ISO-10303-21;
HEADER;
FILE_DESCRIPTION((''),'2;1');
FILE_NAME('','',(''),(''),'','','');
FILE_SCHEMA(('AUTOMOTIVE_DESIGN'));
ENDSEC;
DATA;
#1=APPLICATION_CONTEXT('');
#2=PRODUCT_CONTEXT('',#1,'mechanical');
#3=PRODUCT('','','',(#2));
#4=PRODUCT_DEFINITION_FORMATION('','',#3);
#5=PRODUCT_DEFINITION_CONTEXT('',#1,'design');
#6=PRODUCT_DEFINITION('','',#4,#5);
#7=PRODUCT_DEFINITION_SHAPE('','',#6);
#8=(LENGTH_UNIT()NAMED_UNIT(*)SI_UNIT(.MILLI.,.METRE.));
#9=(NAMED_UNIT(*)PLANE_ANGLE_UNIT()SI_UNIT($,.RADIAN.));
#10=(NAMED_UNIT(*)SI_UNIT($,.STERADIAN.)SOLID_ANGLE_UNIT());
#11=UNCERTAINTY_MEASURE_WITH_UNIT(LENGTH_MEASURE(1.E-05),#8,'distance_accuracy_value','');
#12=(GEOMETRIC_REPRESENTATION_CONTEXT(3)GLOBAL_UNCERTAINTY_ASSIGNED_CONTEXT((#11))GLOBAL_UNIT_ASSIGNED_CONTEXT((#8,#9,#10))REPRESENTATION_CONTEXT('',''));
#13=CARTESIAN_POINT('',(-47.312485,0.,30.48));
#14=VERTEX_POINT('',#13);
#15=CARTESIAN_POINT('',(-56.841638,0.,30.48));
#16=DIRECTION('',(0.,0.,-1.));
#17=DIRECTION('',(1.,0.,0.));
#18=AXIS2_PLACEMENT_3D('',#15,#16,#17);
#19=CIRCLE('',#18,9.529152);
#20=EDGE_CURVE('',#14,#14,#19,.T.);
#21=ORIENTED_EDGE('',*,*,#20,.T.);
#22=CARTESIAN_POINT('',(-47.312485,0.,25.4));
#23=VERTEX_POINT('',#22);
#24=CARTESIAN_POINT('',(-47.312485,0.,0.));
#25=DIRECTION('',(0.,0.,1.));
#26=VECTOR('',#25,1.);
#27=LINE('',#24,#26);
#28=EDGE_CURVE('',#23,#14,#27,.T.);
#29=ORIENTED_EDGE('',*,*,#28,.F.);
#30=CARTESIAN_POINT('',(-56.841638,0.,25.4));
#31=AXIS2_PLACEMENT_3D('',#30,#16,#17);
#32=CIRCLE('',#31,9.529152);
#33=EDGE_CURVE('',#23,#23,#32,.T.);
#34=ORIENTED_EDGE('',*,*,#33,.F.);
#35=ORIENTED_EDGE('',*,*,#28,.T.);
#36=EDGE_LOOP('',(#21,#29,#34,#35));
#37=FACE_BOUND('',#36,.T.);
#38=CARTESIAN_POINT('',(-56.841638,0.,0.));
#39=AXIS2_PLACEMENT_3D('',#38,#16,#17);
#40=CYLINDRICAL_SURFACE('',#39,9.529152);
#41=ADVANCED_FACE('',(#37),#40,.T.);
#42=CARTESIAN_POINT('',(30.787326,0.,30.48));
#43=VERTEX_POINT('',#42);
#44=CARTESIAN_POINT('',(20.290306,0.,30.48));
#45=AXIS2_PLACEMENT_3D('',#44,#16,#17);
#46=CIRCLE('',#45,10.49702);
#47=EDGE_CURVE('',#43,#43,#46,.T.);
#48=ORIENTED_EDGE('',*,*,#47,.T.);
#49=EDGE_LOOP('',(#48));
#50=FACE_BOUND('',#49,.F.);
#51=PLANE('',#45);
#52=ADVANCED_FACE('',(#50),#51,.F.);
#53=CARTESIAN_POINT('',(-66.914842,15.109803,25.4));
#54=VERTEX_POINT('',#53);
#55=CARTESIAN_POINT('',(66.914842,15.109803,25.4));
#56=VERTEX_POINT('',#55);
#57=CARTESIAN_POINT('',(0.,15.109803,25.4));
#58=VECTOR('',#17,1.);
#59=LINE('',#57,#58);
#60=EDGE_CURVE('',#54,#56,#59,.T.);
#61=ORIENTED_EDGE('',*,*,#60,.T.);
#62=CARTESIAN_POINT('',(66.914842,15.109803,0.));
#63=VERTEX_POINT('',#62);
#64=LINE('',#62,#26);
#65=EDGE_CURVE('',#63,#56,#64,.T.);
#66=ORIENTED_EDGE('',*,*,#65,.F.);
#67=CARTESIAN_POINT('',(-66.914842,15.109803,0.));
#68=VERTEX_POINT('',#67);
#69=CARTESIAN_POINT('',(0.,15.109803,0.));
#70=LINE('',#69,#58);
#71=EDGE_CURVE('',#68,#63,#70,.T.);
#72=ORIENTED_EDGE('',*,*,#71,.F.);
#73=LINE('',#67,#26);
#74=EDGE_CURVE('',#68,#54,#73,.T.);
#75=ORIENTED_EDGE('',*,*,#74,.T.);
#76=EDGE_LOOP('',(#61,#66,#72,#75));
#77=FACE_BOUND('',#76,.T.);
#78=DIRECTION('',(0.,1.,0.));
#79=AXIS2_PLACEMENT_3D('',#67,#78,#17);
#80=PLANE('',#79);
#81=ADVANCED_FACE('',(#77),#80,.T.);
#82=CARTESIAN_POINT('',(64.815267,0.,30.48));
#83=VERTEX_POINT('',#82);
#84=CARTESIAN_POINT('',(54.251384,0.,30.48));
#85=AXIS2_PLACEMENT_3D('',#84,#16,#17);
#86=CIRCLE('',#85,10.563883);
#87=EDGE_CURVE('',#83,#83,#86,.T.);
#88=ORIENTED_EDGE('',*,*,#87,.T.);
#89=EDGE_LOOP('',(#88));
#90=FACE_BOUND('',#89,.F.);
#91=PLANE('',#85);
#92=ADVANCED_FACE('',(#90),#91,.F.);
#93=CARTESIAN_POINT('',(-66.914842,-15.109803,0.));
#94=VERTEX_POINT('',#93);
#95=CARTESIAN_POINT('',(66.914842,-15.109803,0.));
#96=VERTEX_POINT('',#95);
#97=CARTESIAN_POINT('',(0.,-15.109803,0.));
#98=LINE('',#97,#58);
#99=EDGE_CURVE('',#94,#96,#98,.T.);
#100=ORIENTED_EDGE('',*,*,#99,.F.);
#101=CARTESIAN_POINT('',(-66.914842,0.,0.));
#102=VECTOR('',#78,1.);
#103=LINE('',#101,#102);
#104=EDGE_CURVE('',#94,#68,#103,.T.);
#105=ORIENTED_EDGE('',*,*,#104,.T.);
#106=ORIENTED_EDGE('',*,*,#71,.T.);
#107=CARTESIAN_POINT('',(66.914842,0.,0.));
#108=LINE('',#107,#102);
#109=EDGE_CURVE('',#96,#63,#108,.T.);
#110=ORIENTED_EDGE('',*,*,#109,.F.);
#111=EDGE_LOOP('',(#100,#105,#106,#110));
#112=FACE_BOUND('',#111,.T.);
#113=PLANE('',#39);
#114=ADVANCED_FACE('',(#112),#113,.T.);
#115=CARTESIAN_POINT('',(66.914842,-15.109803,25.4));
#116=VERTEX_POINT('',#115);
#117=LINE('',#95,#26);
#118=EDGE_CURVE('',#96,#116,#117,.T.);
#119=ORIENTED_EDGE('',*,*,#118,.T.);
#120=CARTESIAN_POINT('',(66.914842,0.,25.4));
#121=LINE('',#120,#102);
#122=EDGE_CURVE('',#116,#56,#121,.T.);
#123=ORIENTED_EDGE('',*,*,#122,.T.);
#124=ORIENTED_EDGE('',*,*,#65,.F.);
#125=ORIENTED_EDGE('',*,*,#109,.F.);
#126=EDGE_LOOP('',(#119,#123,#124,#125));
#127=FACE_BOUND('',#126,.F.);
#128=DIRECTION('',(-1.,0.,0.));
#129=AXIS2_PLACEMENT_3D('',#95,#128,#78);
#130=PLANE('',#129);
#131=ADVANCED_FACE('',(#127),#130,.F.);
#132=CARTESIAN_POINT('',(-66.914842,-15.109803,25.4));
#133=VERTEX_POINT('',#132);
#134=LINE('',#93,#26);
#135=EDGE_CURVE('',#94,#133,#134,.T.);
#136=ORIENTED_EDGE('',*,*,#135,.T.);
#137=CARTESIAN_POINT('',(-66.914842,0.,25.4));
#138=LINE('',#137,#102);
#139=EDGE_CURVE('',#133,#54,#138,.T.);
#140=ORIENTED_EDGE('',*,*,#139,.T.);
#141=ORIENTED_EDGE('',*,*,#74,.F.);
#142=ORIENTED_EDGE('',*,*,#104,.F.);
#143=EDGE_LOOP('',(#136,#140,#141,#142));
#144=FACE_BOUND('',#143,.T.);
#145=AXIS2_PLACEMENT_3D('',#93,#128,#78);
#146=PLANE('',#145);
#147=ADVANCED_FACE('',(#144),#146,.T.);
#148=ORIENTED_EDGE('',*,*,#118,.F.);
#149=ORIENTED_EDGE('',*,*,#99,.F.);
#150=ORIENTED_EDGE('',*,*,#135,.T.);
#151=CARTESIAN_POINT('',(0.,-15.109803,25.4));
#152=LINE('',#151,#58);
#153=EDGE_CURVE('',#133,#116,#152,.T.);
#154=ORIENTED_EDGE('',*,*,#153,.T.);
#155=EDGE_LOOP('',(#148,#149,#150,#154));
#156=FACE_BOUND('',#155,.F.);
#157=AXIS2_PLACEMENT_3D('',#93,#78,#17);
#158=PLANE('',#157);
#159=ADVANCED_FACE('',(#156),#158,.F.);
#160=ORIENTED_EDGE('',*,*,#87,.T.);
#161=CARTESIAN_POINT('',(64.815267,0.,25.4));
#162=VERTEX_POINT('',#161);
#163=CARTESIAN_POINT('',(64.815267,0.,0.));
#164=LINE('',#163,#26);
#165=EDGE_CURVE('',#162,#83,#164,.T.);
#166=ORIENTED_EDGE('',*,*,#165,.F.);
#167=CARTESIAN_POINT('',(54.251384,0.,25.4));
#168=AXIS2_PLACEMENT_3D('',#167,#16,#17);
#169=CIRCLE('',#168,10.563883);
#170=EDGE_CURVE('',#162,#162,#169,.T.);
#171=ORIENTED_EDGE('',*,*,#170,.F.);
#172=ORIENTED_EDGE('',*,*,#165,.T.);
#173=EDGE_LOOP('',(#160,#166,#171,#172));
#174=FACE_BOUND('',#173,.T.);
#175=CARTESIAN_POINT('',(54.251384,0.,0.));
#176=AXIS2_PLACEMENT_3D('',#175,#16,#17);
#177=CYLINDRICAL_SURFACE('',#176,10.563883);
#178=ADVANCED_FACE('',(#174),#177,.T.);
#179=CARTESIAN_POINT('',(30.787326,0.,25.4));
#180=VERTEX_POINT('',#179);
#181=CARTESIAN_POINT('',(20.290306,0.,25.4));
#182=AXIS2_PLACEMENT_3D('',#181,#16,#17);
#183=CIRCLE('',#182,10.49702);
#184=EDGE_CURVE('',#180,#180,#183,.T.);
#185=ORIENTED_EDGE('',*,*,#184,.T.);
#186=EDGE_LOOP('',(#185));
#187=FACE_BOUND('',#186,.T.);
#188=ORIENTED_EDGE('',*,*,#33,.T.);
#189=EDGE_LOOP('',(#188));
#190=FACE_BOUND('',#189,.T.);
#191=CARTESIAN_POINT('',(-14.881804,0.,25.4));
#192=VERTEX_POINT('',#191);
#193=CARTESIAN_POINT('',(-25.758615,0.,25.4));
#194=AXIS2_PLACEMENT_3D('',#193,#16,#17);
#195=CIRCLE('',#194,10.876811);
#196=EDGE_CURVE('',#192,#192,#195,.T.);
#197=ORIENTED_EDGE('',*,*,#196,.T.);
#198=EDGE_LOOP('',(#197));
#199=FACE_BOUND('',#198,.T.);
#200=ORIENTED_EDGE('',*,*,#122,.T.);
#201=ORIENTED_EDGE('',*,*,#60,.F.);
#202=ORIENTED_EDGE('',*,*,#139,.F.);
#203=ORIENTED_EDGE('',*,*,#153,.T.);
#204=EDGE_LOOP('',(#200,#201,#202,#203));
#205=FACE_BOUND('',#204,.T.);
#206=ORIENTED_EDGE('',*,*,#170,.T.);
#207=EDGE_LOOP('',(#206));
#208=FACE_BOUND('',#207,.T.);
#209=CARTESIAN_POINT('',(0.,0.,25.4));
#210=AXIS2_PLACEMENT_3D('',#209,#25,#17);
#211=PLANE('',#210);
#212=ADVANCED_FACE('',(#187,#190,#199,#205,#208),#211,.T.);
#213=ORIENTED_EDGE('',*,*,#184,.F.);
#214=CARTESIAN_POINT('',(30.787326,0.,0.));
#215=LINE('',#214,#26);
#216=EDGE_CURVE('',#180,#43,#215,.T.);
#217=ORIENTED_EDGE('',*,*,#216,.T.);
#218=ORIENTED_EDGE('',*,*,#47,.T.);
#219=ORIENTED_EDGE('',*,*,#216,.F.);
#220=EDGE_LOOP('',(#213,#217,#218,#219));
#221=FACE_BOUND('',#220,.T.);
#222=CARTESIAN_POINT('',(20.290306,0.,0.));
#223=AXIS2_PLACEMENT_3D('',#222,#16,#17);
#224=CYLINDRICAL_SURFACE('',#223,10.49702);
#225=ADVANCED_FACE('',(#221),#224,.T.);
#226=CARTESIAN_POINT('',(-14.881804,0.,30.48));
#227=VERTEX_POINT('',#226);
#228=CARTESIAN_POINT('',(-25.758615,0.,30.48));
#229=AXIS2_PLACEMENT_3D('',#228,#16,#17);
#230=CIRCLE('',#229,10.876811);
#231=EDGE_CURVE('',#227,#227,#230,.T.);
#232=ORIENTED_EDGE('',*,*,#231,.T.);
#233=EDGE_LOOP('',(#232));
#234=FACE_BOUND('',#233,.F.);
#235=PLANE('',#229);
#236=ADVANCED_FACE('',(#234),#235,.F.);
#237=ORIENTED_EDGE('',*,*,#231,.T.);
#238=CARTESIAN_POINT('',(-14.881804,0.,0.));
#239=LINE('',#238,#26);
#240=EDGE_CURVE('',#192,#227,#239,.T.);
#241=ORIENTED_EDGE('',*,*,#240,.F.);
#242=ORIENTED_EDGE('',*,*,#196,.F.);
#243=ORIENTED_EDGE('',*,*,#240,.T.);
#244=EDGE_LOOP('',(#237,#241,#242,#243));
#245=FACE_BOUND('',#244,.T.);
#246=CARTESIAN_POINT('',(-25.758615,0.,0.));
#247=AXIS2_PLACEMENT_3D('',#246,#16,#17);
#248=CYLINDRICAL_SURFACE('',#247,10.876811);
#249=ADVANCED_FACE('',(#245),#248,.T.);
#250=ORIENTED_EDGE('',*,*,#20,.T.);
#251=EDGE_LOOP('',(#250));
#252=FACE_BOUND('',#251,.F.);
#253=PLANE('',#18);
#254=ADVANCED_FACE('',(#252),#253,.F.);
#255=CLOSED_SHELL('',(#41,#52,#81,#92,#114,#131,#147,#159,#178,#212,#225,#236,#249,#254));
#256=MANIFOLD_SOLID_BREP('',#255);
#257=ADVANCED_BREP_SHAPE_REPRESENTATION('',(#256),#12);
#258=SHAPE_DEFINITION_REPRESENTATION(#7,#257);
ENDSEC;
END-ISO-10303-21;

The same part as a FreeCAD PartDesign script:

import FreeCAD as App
import Part
import Sketcher
from FreeCAD import Vector
Q = App.Units.Quantity


def add_polygon(sketch, points):
    """Adds a closed chain of lines whose ends are joined by coincident constraints."""
    first, n = sketch.GeometryCount, len(points)
    for a, b in zip(points, points[1:] + points[:1]):
        sketch.addGeometry(Part.LineSegment(App.Vector(*a, 0), App.Vector(*b, 0)), False)
    for i in range(n):
        sketch.addConstraint(Sketcher.Constraint("Coincident", first + i, 2, first + (i + 1) % n, 1))

doc = App.newDocument("Part")
body = doc.addObject("PartDesign::Body", "Body")

# Sketch on XY plane
sketch1 = body.newObject("Sketcher::SketchObject", "Sketch")
sketch1.AttachmentSupport = (doc.getObject("XY_Plane"), [""])
sketch1.MapMode = "FlatFace"
add_polygon(sketch1, [(-66.914842, 15.109803), (-66.914842, -15.109803), (66.914842, -15.109803), (66.914842, 15.109803)])  # lines 0-3
sketch1.addConstraint([
    Sketcher.Constraint("Vertical", 0),
    Sketcher.Constraint("Horizontal", 1),
    Sketcher.Constraint("Vertical", 2),
    Sketcher.Constraint("Horizontal", 3),
    Sketcher.Constraint("Symmetric", 0, 2, 2, 2, -1, 1),
    Sketcher.Constraint("DistanceX", 1, 1, 1, 2, Q("133.829683 mm")),
    Sketcher.Constraint("DistanceY", 0, 2, 0, 1, Q("30.219605 mm")),
])
pad1 = body.newObject("PartDesign::Pad", "Pad")
pad1.Profile = sketch1
pad1.Length = Q("1 in")

# Sketch on XY plane
sketch2 = body.newObject("Sketcher::SketchObject", "Sketch001")
sketch2.AttachmentSupport = (doc.getObject("XY_Plane"), [""])
sketch2.MapMode = "FlatFace"
sketch2.addGeometry([
    Part.Circle(Vector(-56.841638, 0, 0), Vector(0, 0, 1), 9.529152),
    Part.Circle(Vector(-25.758615, 0, 0), Vector(0, 0, 1), 10.876811),
    Part.Circle(Vector(20.290306, 0, 0), Vector(0, 0, 1), 10.49702),
    Part.Circle(Vector(54.251384, 0, 0), Vector(0, 0, 1), 10.563883),
], False)
sketch2.addConstraint([
    Sketcher.Constraint("PointOnObject", 0, 3, -1),
    Sketcher.Constraint("PointOnObject", 1, 3, -1),
    Sketcher.Constraint("PointOnObject", 2, 3, -1),
    Sketcher.Constraint("PointOnObject", 3, 3, -1),
    Sketcher.Constraint("DistanceX", 1, 3, 3, 3, Q("3.15 in")),
    Sketcher.Constraint("Diameter", 1, Q("21.753622 mm")),
    Sketcher.Constraint("Diameter", 2, Q("20.99404 mm")),
    Sketcher.Constraint("Diameter", 0, Q("19.058305 mm")),
    Sketcher.Constraint("Diameter", 3, Q("21.127767 mm")),
    Sketcher.Constraint("DistanceX", 1, 3, 2, 3, Q("46.048921 mm")),
    Sketcher.Constraint("DistanceX", 0, 3, 3, 3, Q("111.093022 mm")),
    Sketcher.Constraint("DistanceX", 0, 3, -1, 1, Q("56.841638 mm")),
])
pad2 = body.newObject("PartDesign::Pad", "Pad001")
pad2.Profile = sketch2
pad2.Length = Q("1.2 in")

doc.recompute()
